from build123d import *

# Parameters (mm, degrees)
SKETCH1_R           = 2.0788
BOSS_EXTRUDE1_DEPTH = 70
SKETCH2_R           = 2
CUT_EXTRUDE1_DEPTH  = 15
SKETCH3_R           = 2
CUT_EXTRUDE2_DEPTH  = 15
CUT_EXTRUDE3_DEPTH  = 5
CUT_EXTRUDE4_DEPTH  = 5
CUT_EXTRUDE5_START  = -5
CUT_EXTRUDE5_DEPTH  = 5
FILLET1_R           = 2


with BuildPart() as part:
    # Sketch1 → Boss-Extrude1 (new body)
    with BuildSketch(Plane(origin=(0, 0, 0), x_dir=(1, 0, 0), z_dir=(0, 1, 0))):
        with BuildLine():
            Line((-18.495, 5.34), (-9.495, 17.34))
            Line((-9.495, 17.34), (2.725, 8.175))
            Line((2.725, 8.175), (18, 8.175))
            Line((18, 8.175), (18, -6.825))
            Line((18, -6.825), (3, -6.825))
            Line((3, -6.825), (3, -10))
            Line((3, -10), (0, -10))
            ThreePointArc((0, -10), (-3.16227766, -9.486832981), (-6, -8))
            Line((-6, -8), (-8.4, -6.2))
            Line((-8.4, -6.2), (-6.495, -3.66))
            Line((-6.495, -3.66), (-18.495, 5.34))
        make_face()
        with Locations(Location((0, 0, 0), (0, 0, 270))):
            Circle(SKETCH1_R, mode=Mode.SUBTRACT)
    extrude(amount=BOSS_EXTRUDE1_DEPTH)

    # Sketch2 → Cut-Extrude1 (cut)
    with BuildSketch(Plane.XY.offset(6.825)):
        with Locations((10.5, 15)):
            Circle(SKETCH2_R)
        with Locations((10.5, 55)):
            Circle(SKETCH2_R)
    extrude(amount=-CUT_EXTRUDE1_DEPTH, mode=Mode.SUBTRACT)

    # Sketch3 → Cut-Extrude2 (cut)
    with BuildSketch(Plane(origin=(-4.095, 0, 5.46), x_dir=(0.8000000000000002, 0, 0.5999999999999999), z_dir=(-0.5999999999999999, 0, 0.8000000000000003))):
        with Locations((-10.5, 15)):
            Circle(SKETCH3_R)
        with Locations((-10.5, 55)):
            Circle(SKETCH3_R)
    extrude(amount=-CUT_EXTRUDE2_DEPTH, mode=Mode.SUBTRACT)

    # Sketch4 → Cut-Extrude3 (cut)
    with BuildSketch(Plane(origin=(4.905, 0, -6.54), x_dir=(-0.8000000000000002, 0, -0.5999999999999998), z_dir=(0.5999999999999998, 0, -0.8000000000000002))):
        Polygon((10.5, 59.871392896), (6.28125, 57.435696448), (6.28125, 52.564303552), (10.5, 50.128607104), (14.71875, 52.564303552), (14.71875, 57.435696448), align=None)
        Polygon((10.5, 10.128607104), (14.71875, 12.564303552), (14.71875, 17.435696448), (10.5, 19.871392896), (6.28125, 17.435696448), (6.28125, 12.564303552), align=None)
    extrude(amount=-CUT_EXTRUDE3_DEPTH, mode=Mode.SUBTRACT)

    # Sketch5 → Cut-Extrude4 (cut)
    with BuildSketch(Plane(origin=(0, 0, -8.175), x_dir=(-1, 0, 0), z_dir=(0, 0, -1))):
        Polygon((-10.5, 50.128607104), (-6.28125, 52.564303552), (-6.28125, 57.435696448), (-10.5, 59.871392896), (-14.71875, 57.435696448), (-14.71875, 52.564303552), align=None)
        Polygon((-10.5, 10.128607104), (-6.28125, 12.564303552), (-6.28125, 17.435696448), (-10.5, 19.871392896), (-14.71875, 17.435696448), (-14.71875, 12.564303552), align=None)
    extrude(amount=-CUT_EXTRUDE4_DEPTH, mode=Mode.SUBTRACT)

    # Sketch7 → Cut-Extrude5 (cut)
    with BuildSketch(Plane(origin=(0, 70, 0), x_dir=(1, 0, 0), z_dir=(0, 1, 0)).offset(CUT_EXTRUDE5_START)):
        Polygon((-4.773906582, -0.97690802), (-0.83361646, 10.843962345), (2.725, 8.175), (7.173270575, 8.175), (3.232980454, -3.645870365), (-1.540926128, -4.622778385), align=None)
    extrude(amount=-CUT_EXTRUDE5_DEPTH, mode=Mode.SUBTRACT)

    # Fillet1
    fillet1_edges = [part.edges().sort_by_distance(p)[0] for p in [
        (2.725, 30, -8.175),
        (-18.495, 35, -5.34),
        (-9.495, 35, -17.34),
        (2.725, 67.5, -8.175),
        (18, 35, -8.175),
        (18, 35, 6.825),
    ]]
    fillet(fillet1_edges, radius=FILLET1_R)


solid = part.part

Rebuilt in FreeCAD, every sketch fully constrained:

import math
import FreeCAD as App
import Part
import Sketcher
Q = App.Units.Quantity


def edges_at(feature, points):
    """Names of the edges that pass closest to the given points."""
    edges = feature.Shape.Edges
    near = lambda p: min(range(len(edges)), key=lambda i: edges[i].distToShape(Part.Vertex(*p))[0])
    return sorted({f"Edge{near(p) + 1}" for p in points})

doc = App.newDocument("Part")
params = doc.addObject("Spreadsheet::Sheet", "Params")
for row, (alias, value) in enumerate([
    ("sketch1_radius", "10 mm"),
    ("sketch1_width", "3 mm"),
    ("sketch1_width2", "15 mm"),
    ("sketch1_length", "15 mm"),
    ("sketch1_length2", "3 mm"),
    ("pad1_length", "70 mm"),
    ("sketch2_diameter", "4 mm"),
    ("pocket1_length", "15 mm"),
    ("sketch3_diameter", "4 mm"),
    ("pocket2_length", "15 mm"),
    ("pocket3_length", "5 mm"),
    ("pocket4_length", "5 mm"),
    ("pocket5_length", "5 mm"),
    ("fillet_radius", "2 mm"),
], start=1):
    params.set(f"A{row}", alias)
    params.set(f"B{row}", "=" + value)
    params.setAlias(f"B{row}", alias)

body = doc.addObject("PartDesign::Body", "Body")

# Sketch on XZ plane
sketch1 = body.newObject("Sketcher::SketchObject", "Sketch")
sketch1.AttachmentSupport = (doc.getObject("XZ_Plane"), [""])
sketch1.MapMode = "FlatFace"
sketch1.addGeometry(Part.LineSegment(App.Vector(-9.495, -17.34, 0), App.Vector(-18.495, -5.34, 0)), False)
sketch1.addGeometry(Part.LineSegment(App.Vector(-18.495, -5.34, 0), App.Vector(-6.495, 3.66, 0)), False)
sketch1.addGeometry(Part.LineSegment(App.Vector(-6.495, 3.66, 0), App.Vector(-8.4, 6.2, 0)), False)
sketch1.addGeometry(Part.LineSegment(App.Vector(-8.4, 6.2, 0), App.Vector(-6, 8, 0)), False)
sketch1.addGeometry(Part.ArcOfCircle(Part.Circle(App.Vector(0, 0, 0), App.Vector(0, 0, 1), 10), math.radians(90), math.radians(126.869898)), False)
sketch1.addGeometry(Part.LineSegment(App.Vector(0, 10, 0), App.Vector(3, 10, 0)), False)
sketch1.addGeometry(Part.LineSegment(App.Vector(3, 10, 0), App.Vector(3, 6.825, 0)), False)
sketch1.addGeometry(Part.LineSegment(App.Vector(3, 6.825, 0), App.Vector(18, 6.825, 0)), False)
sketch1.addGeometry(Part.LineSegment(App.Vector(18, 6.825, 0), App.Vector(18, -8.175, 0)), False)
sketch1.addGeometry(Part.LineSegment(App.Vector(18, -8.175, 0), App.Vector(2.725, -8.175, 0)), False)
sketch1.addGeometry(Part.LineSegment(App.Vector(2.725, -8.175, 0), App.Vector(-9.495, -17.34, 0)), False)
sketch1.addGeometry(Part.Circle(App.Vector(0, 0, 0), App.Vector(0, 0, 1), 2.0788), False)
sketch1.addConstraint(Sketcher.Constraint("Coincident", 0, 2, 1, 1))
sketch1.addConstraint(Sketcher.Constraint("Coincident", 1, 2, 2, 1))
sketch1.addConstraint(Sketcher.Constraint("Coincident", 2, 2, 3, 1))
sketch1.addConstraint(Sketcher.Constraint("Tangent", 3, 2, 4, 2))
sketch1.addConstraint(Sketcher.Constraint("Tangent", 4, 1, 5, 1))
sketch1.addConstraint(Sketcher.Constraint("Coincident", 5, 2, 6, 1))
sketch1.addConstraint(Sketcher.Constraint("Coincident", 6, 2, 7, 1))
sketch1.addConstraint(Sketcher.Constraint("Coincident", 7, 2, 8, 1))
sketch1.addConstraint(Sketcher.Constraint("Coincident", 8, 2, 9, 1))
sketch1.addConstraint(Sketcher.Constraint("Coincident", 9, 2, 10, 1))
sketch1.addConstraint(Sketcher.Constraint("Coincident", 10, 2, 0, 1))
sketch1.addConstraint(Sketcher.Constraint("Horizontal", 5))
sketch1.addConstraint(Sketcher.Constraint("Vertical", 6))
sketch1.addConstraint(Sketcher.Constraint("Horizontal", 7))
sketch1.addConstraint(Sketcher.Constraint("Vertical", 8))
sketch1.addConstraint(Sketcher.Constraint("Horizontal", 9))
sketch1.addConstraint(Sketcher.Constraint("Coincident", 4, 3, -1, 1))
sketch1.addConstraint(Sketcher.Constraint("Coincident", 11, 3, -1, 1))
sketch1.addConstraint(Sketcher.Constraint("Perpendicular", 0, 1))
sketch1.addConstraint(Sketcher.Constraint("Perpendicular", 1, 2))
sketch1.addConstraint(Sketcher.Constraint("Perpendicular", 2, 3))
sketch1.addConstraint(Sketcher.Constraint("Parallel", 3, 10))
sketch1.addConstraint(Sketcher.Constraint("Equal", 7, 8))
sketch1.addConstraint(Sketcher.Constraint("Equal", 0, 1))
sketch1.addConstraint(Sketcher.Constraint("Radius", 4, 10.0))
sketch1.addConstraint(Sketcher.Constraint("DistanceX", 5, 1, 5, 2, 3.0))
sketch1.addConstraint(Sketcher.Constraint("DistanceX", 7, 1, 7, 2, 15.0))
sketch1.addConstraint(Sketcher.Constraint("Distance", 0, 15.0))
sketch1.addConstraint(Sketcher.Constraint("Distance", 3, 3.0))
sketch1.addConstraint(Sketcher.Constraint("DistanceX", 3, 2, -1, 1, 6.0))
sketch1.addConstraint(Sketcher.Constraint("Diameter", 11, 4.1576))
sketch1.addConstraint(Sketcher.Constraint("DistanceX", 9, 2, 9, 1, 15.275))
sketch1.addConstraint(Sketcher.Constraint("DistanceY", 6, 2, 6, 1, 3.175))
sketch1.setExpression("Constraints[24]", "Params.sketch1_radius")
sketch1.setExpression("Constraints[25]", "Params.sketch1_width")
sketch1.setExpression("Constraints[26]", "Params.sketch1_width2")
sketch1.setExpression("Constraints[27]", "Params.sketch1_length")
sketch1.setExpression("Constraints[28]", "Params.sketch1_length2")
pad1 = body.newObject("PartDesign::Pad", "Pad")
pad1.Profile = sketch1
pad1.setExpression("Length", "Params.pad1_length")
pad1.Reversed = True

# Sketch on XY plane
sketch2 = body.newObject("Sketcher::SketchObject", "Sketch001")
sketch2.AttachmentSupport = (doc.getObject("XY_Plane"), [""])
sketch2.MapMode = "FlatFace"
sketch2.AttachmentOffset = App.Placement(App.Vector(0, 0, 6.825), App.Rotation())
sketch2.addGeometry(Part.Circle(App.Vector(10.5, 15, 0), App.Vector(0, 0, 1), 2), False)
sketch2.addGeometry(Part.Circle(App.Vector(10.5, 55, 0), App.Vector(0, 0, 1), 2), False)
sketch2.addConstraint(Sketcher.Constraint("Equal", 0, 1))
sketch2.addConstraint(Sketcher.Constraint("Vertical", 0, 3, 1, 3))
sketch2.addConstraint(Sketcher.Constraint("Diameter", 0, 4.0))
sketch2.addConstraint(Sketcher.Constraint("DistanceY", -1, 1, 0, 3, 15.0))
sketch2.addConstraint(Sketcher.Constraint("DistanceY", -1, 1, 1, 3, 55.0))
sketch2.addConstraint(Sketcher.Constraint("DistanceX", -1, 1, 0, 3, 10.5))
sketch2.setExpression("Constraints[2]", "Params.sketch2_diameter")
pocket1 = body.newObject("PartDesign::Pocket", "Pocket")
pocket1.Profile = sketch2
pocket1.setExpression("Length", "Params.pocket1_length")

# Sketch on an angled plane
sketch3 = body.newObject("Sketcher::SketchObject", "Sketch002")
sketch3.Placement = App.Placement(App.Vector(-4.095, 0, 5.46), App.Rotation(App.Vector(0.8, 0, 0.6), App.Vector(0, 1, 0), App.Vector(-0.6, 0, 0.8), "ZXY"))
sketch3.addGeometry(Part.Circle(App.Vector(-10.5, 15, 0), App.Vector(0, 0, 1), 2), False)
sketch3.addGeometry(Part.Circle(App.Vector(-10.5, 55, 0), App.Vector(0, 0, 1), 2), False)
sketch3.addConstraint(Sketcher.Constraint("Equal", 0, 1))
sketch3.addConstraint(Sketcher.Constraint("Vertical", 0, 3, 1, 3))
sketch3.addConstraint(Sketcher.Constraint("Diameter", 0, 4.0))
sketch3.addConstraint(Sketcher.Constraint("DistanceY", -1, 1, 0, 3, 15.0))
sketch3.addConstraint(Sketcher.Constraint("DistanceY", -1, 1, 1, 3, 55.0))
sketch3.addConstraint(Sketcher.Constraint("DistanceX", 0, 3, -1, 1, 10.5))
sketch3.setExpression("Constraints[2]", "Params.sketch3_diameter")
pocket2 = body.newObject("PartDesign::Pocket", "Pocket001")
pocket2.Profile = sketch3
pocket2.setExpression("Length", "Params.pocket2_length")

# Sketch on an angled plane
sketch4 = body.newObject("Sketcher::SketchObject", "Sketch003")
sketch4.Placement = App.Placement(App.Vector(4.905, 0, -6.54), App.Rotation(App.Vector(-0.8, 0, -0.6), App.Vector(0, 1, 0), App.Vector(0.6, 0, -0.8), "ZXY"))
sketch4.addGeometry(Part.LineSegment(App.Vector(10.5, 59.871393, 0), App.Vector(6.28125, 57.435696, 0)), False)
sketch4.addGeometry(Part.LineSegment(App.Vector(6.28125, 57.435696, 0), App.Vector(6.28125, 52.564304, 0)), False)
sketch4.addGeometry(Part.LineSegment(App.Vector(6.28125, 52.564304, 0), App.Vector(10.5, 50.128607, 0)), False)
sketch4.addGeometry(Part.LineSegment(App.Vector(10.5, 50.128607, 0), App.Vector(14.71875, 52.564304, 0)), False)
sketch4.addGeometry(Part.LineSegment(App.Vector(14.71875, 52.564304, 0), App.Vector(14.71875, 57.435696, 0)), False)
sketch4.addGeometry(Part.LineSegment(App.Vector(14.71875, 57.435696, 0), App.Vector(10.5, 59.871393, 0)), False)
sketch4.addGeometry(Part.LineSegment(App.Vector(10.5, 10.128607, 0), App.Vector(14.71875, 12.564304, 0)), False)
sketch4.addGeometry(Part.LineSegment(App.Vector(14.71875, 12.564304, 0), App.Vector(14.71875, 17.435696, 0)), False)
sketch4.addGeometry(Part.LineSegment(App.Vector(14.71875, 17.435696, 0), App.Vector(10.5, 19.871393, 0)), False)
sketch4.addGeometry(Part.LineSegment(App.Vector(10.5, 19.871393, 0), App.Vector(6.28125, 17.435696, 0)), False)
sketch4.addGeometry(Part.LineSegment(App.Vector(6.28125, 17.435696, 0), App.Vector(6.28125, 12.564304, 0)), False)
sketch4.addGeometry(Part.LineSegment(App.Vector(6.28125, 12.564304, 0), App.Vector(10.5, 10.128607, 0)), False)
sketch4.addConstraint(Sketcher.Constraint("Coincident", 0, 2, 1, 1))
sketch4.addConstraint(Sketcher.Constraint("Coincident", 1, 2, 2, 1))
sketch4.addConstraint(Sketcher.Constraint("Coincident", 2, 2, 3, 1))
sketch4.addConstraint(Sketcher.Constraint("Coincident", 3, 2, 4, 1))
sketch4.addConstraint(Sketcher.Constraint("Coincident", 4, 2, 5, 1))
sketch4.addConstraint(Sketcher.Constraint("Coincident", 5, 2, 0, 1))
sketch4.addConstraint(Sketcher.Constraint("Coincident", 6, 2, 7, 1))
sketch4.addConstraint(Sketcher.Constraint("Coincident", 7, 2, 8, 1))
sketch4.addConstraint(Sketcher.Constraint("Coincident", 8, 2, 9, 1))
sketch4.addConstraint(Sketcher.Constraint("Coincident", 9, 2, 10, 1))
sketch4.addConstraint(Sketcher.Constraint("Coincident", 10, 2, 11, 1))
sketch4.addConstraint(Sketcher.Constraint("Coincident", 11, 2, 6, 1))
sketch4.addConstraint(Sketcher.Constraint("Vertical", 1))
sketch4.addConstraint(Sketcher.Constraint("Vertical", 4))
sketch4.addConstraint(Sketcher.Constraint("Vertical", 7))
sketch4.addConstraint(Sketcher.Constraint("Vertical", 10))
sketch4.addConstraint(Sketcher.Constraint("Parallel", 0, 3))
sketch4.addConstraint(Sketcher.Constraint("Parallel", 2, 5))
sketch4.addConstraint(Sketcher.Constraint("Parallel", 3, 6))
sketch4.addConstraint(Sketcher.Constraint("Parallel", 5, 8))
sketch4.addConstraint(Sketcher.Constraint("Parallel", 6, 9))
sketch4.addConstraint(Sketcher.Constraint("Parallel", 8, 11))
sketch4.addConstraint(Sketcher.Constraint("Horizontal", 1, 2, 3, 2))
sketch4.addConstraint(Sketcher.Constraint("Horizontal", 0, 2, 4, 2))
sketch4.addConstraint(Sketcher.Constraint("Horizontal", 7, 2, 9, 2))
sketch4.addConstraint(Sketcher.Constraint("Horizontal", 6, 2, 10, 2))
sketch4.addConstraint(Sketcher.Constraint("Vertical", 2, 2, 5, 2))
sketch4.addConstraint(Sketcher.Constraint("Vertical", 4, 2, 6, 2))
sketch4.addConstraint(Sketcher.Constraint("Vertical", 5, 2, 8, 2))
sketch4.addConstraint(Sketcher.Constraint("Equal", 4, 7))
sketch4.addConstraint(Sketcher.Constraint("Angle", 0, Q("-150 deg")))
sketch4.addConstraint(Sketcher.Constraint("DistanceY", 6, 2, 3, 2, 40.0))
sketch4.addConstraint(Sketcher.Constraint("DistanceX", -1, 1, 2, 2, 10.5))
sketch4.addConstraint(Sketcher.Constraint("DistanceX", 1, 2, 3, 2, 8.4375))
sketch4.addConstraint(Sketcher.Constraint("DistanceY", 1, 2, 1, 1, 4.871393))
sketch4.addConstraint(Sketcher.Constraint("DistanceY", -1, 1, 0, 2, 57.435696))
pocket3 = body.newObject("PartDesign::Pocket", "Pocket002")
pocket3.Profile = sketch4
pocket3.setExpression("Length", "Params.pocket3_length")

# Sketch on XY plane
sketch5 = body.newObject("Sketcher::SketchObject", "Sketch004")
sketch5.AttachmentSupport = (doc.getObject("XY_Plane"), [""])
sketch5.MapMode = "FlatFace"
sketch5.AttachmentOffset = App.Placement(App.Vector(0, 0, -8.175), App.Rotation())
sketch5.addGeometry(Part.LineSegment(App.Vector(10.5, 50.128607, 0), App.Vector(6.28125, 52.564304, 0)), False)
sketch5.addGeometry(Part.LineSegment(App.Vector(6.28125, 52.564304, 0), App.Vector(6.28125, 57.435696, 0)), False)
sketch5.addGeometry(Part.LineSegment(App.Vector(6.28125, 57.435696, 0), App.Vector(10.5, 59.871393, 0)), False)
sketch5.addGeometry(Part.LineSegment(App.Vector(10.5, 59.871393, 0), App.Vector(14.71875, 57.435696, 0)), False)
sketch5.addGeometry(Part.LineSegment(App.Vector(14.71875, 57.435696, 0), App.Vector(14.71875, 52.564304, 0)), False)
sketch5.addGeometry(Part.LineSegment(App.Vector(14.71875, 52.564304, 0), App.Vector(10.5, 50.128607, 0)), False)
sketch5.addGeometry(Part.LineSegment(App.Vector(10.5, 10.128607, 0), App.Vector(6.28125, 12.564304, 0)), False)
sketch5.addGeometry(Part.LineSegment(App.Vector(6.28125, 12.564304, 0), App.Vector(6.28125, 17.435696, 0)), False)
sketch5.addGeometry(Part.LineSegment(App.Vector(6.28125, 17.435696, 0), App.Vector(10.5, 19.871393, 0)), False)
sketch5.addGeometry(Part.LineSegment(App.Vector(10.5, 19.871393, 0), App.Vector(14.71875, 17.435696, 0)), False)
sketch5.addGeometry(Part.LineSegment(App.Vector(14.71875, 17.435696, 0), App.Vector(14.71875, 12.564304, 0)), False)
sketch5.addGeometry(Part.LineSegment(App.Vector(14.71875, 12.564304, 0), App.Vector(10.5, 10.128607, 0)), False)
sketch5.addConstraint(Sketcher.Constraint("Coincident", 0, 2, 1, 1))
sketch5.addConstraint(Sketcher.Constraint("Coincident", 1, 2, 2, 1))
sketch5.addConstraint(Sketcher.Constraint("Coincident", 2, 2, 3, 1))
sketch5.addConstraint(Sketcher.Constraint("Coincident", 3, 2, 4, 1))
sketch5.addConstraint(Sketcher.Constraint("Coincident", 4, 2, 5, 1))
sketch5.addConstraint(Sketcher.Constraint("Coincident", 5, 2, 0, 1))
sketch5.addConstraint(Sketcher.Constraint("Coincident", 6, 2, 7, 1))
sketch5.addConstraint(Sketcher.Constraint("Coincident", 7, 2, 8, 1))
sketch5.addConstraint(Sketcher.Constraint("Coincident", 8, 2, 9, 1))
sketch5.addConstraint(Sketcher.Constraint("Coincident", 9, 2, 10, 1))
sketch5.addConstraint(Sketcher.Constraint("Coincident", 10, 2, 11, 1))
sketch5.addConstraint(Sketcher.Constraint("Coincident", 11, 2, 6, 1))
sketch5.addConstraint(Sketcher.Constraint("Vertical", 1))
sketch5.addConstraint(Sketcher.Constraint("Vertical", 4))
sketch5.addConstraint(Sketcher.Constraint("Vertical", 7))
sketch5.addConstraint(Sketcher.Constraint("Vertical", 10))
sketch5.addConstraint(Sketcher.Constraint("Parallel", 0, 3))
sketch5.addConstraint(Sketcher.Constraint("Parallel", 2, 5))
sketch5.addConstraint(Sketcher.Constraint("Parallel", 3, 6))
sketch5.addConstraint(Sketcher.Constraint("Parallel", 5, 8))
sketch5.addConstraint(Sketcher.Constraint("Parallel", 6, 9))
sketch5.addConstraint(Sketcher.Constraint("Parallel", 8, 11))
sketch5.addConstraint(Sketcher.Constraint("Horizontal", 1, 2, 3, 2))
sketch5.addConstraint(Sketcher.Constraint("Horizontal", 0, 2, 4, 2))
sketch5.addConstraint(Sketcher.Constraint("Horizontal", 7, 2, 9, 2))
sketch5.addConstraint(Sketcher.Constraint("Horizontal", 6, 2, 10, 2))
sketch5.addConstraint(Sketcher.Constraint("Vertical", 2, 2, 5, 2))
sketch5.addConstraint(Sketcher.Constraint("Vertical", 1, 2, 6, 2))
sketch5.addConstraint(Sketcher.Constraint("Vertical", 5, 2, 8, 2))
sketch5.addConstraint(Sketcher.Constraint("Equal", 4, 7))
sketch5.addConstraint(Sketcher.Constraint("Angle", 0, Q("150 deg")))
sketch5.addConstraint(Sketcher.Constraint("DistanceY", 6, 2, 0, 2, 40.0))
sketch5.addConstraint(Sketcher.Constraint("DistanceX", -1, 1, 2, 2, 10.5))
sketch5.addConstraint(Sketcher.Constraint("DistanceX", 1, 2, 3, 2, 8.4375))
sketch5.addConstraint(Sketcher.Constraint("DistanceY", 1, 1, 1, 2, 4.871393))
sketch5.addConstraint(Sketcher.Constraint("DistanceY", -1, 1, 0, 2, 52.564304))
pocket4 = body.newObject("PartDesign::Pocket", "Pocket003")
pocket4.Profile = sketch5
pocket4.setExpression("Length", "Params.pocket4_length")
pocket4.Reversed = True

# Sketch on XZ plane
sketch6 = body.newObject("Sketcher::SketchObject", "Sketch005")
sketch6.AttachmentSupport = (doc.getObject("XZ_Plane"), [""])
sketch6.MapMode = "FlatFace"
sketch6.AttachmentOffset = App.Placement(App.Vector(0, 0, -65), App.Rotation())
sketch6.addGeometry(Part.LineSegment(App.Vector(-0.833616, -10.843962, 0), App.Vector(-4.773907, 0.976908, 0)), False)
sketch6.addGeometry(Part.LineSegment(App.Vector(-4.773907, 0.976908, 0), App.Vector(-1.540926, 4.622778, 0)), False)
sketch6.addGeometry(Part.LineSegment(App.Vector(-1.540926, 4.622778, 0), App.Vector(3.23298, 3.64587, 0)), False)
sketch6.addGeometry(Part.LineSegment(App.Vector(3.23298, 3.64587, 0), App.Vector(7.173271, -8.175, 0)), False)
sketch6.addGeometry(Part.LineSegment(App.Vector(7.173271, -8.175, 0), App.Vector(2.725, -8.175, 0)), False)
sketch6.addGeometry(Part.LineSegment(App.Vector(2.725, -8.175, 0), App.Vector(-0.833616, -10.843962, 0)), False)
sketch6.addConstraint(Sketcher.Constraint("Coincident", 0, 2, 1, 1))
sketch6.addConstraint(Sketcher.Constraint("Coincident", 1, 2, 2, 1))
sketch6.addConstraint(Sketcher.Constraint("Coincident", 2, 2, 3, 1))
sketch6.addConstraint(Sketcher.Constraint("Coincident", 3, 2, 4, 1))
sketch6.addConstraint(Sketcher.Constraint("Coincident", 4, 2, 5, 1))
sketch6.addConstraint(Sketcher.Constraint("Coincident", 5, 2, 0, 1))
sketch6.addConstraint(Sketcher.Constraint("Horizontal", 4))
sketch6.addConstraint(Sketcher.Constraint("Parallel", 0, 3))
sketch6.addConstraint(Sketcher.Constraint("Equal", 1, 2))
sketch6.addConstraint(Sketcher.Constraint("Equal", 0, 3))
sketch6.addConstraint(Sketcher.Constraint("DistanceY", 3, 2, -1, 1, 8.175))
sketch6.addConstraint(Sketcher.Constraint("DistanceX", -1, 1, 4, 2, 2.725))
sketch6.addConstraint(Sketcher.Constraint("DistanceX", 4, 2, 4, 1, 4.448271))
sketch6.addConstraint(Sketcher.Constraint("Distance", 0, 12.460291))
sketch6.addConstraint(Sketcher.Constraint("Distance", 5, 4.448271))
sketch6.addConstraint(Sketcher.Constraint("DistanceY", -1, 1, 0, 2, 0.976908))
sketch6.addConstraint(Sketcher.Constraint("DistanceY", -1, 1, 1, 2, 4.622778))
sketch6.addConstraint(Sketcher.Constraint("DistanceX", -1, 1, 2, 2, 3.23298))
pocket5 = body.newObject("PartDesign::Pocket", "Pocket004")
pocket5.Profile = sketch6
pocket5.setExpression("Length", "Params.pocket5_length")
pocket5.Reversed = True
doc.recompute()

fillet = body.newObject("PartDesign::Fillet", "Fillet")
fillet.Base = (pocket5, edges_at(pocket5, [
    (2.725, 30, -8.175),
    (-18.495, 35, -5.34),
    (-9.495, 35, -17.34),
    (2.725, 67.5, -8.175),
    (18, 35, -8.175),
    (18, 35, 6.825),
]))
fillet.setExpression("Radius", "Params.fillet_radius")

doc.recompute()
